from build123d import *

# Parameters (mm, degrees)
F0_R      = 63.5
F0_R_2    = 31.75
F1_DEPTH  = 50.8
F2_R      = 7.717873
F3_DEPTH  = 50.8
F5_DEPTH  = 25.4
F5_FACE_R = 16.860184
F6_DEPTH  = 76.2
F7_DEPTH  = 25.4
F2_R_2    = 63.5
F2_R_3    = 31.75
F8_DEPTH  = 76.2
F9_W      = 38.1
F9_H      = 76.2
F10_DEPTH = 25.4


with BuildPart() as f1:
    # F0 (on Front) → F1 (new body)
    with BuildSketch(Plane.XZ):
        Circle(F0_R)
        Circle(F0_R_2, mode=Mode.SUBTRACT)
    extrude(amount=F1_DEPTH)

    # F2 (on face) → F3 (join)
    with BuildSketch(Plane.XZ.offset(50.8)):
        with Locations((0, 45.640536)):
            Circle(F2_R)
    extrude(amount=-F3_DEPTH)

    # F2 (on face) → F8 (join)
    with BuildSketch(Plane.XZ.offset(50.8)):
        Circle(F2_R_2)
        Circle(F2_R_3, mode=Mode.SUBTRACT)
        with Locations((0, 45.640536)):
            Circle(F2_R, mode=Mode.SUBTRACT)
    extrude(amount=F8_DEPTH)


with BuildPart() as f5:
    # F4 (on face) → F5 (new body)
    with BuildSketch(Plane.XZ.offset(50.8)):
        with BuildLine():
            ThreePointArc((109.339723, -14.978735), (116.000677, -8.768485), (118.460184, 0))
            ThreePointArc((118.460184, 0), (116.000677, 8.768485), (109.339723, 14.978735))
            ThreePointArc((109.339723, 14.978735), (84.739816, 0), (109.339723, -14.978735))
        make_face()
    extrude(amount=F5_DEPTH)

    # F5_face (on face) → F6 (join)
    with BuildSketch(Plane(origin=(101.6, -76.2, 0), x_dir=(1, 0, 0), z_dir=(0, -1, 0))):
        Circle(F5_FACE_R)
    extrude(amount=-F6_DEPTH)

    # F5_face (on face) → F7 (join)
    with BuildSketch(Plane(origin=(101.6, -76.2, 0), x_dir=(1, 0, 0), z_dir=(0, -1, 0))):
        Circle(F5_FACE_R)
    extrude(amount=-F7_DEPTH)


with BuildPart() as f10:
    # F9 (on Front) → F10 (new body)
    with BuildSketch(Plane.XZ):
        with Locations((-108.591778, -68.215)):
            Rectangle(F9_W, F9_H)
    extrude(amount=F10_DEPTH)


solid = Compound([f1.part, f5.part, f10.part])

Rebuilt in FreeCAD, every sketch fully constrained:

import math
import FreeCAD as App
import Part
import Sketcher
Q = App.Units.Quantity

doc = App.newDocument("Part")
body = doc.addObject("PartDesign::Body", "Body")

sketch1 = body.newObject("Sketcher::SketchObject", "Sketch")
sketch1.AttachmentSupport = (doc.getObject("XZ_Plane"), [""])
sketch1.MapMode = "FlatFace"
sketch1.addGeometry(Part.Circle(App.Vector(0, 0, 0), App.Vector(0, 0, 1), 64), False)
sketch1.addGeometry(Part.Circle(App.Vector(0, 0, 0), App.Vector(0, 0, 1), 32), False)
sketch1.addConstraint(Sketcher.Constraint("Coincident", 0, 3, -1, 1))
sketch1.addConstraint(Sketcher.Constraint("Coincident", 1, 3, -1, 1))
sketch1.addConstraint(Sketcher.Constraint("Diameter", 0, Q("5 in")))
sketch1.addConstraint(Sketcher.Constraint("Diameter", 1, Q("2.5 in")))
pad1 = body.newObject("PartDesign::Pad", "Pad")
pad1.Profile = sketch1
pad1.Length = Q("2 in")

sketch2 = body.newObject("Sketcher::SketchObject", "Sketch001")
sketch2.AttachmentSupport = (doc.getObject("XZ_Plane"), [""])
sketch2.MapMode = "FlatFace"
sketch2.AttachmentOffset = App.Placement(App.Vector(0, 0, 2 * 25.4), App.Rotation())
sketch2.addGeometry(Part.Circle(App.Vector(0, 46, 0), App.Vector(0, 0, 1), 8), False)
sketch2.addConstraint(Sketcher.Constraint("PointOnObject", 0, 3, -2))
sketch2.addConstraint(Sketcher.Constraint("Diameter", 0, Q("15.435746 mm")))
sketch2.addConstraint(Sketcher.Constraint("DistanceY", -1, 1, 0, 3, Q("45.640536 mm")))
pad2 = body.newObject("PartDesign::Pad", "Pad001")
pad2.Profile = sketch2
pad2.Length = Q("2 in")
pad2.Reversed = True

sketch3 = body.newObject("Sketcher::SketchObject", "Sketch002")
sketch3.AttachmentSupport = (doc.getObject("XZ_Plane"), [""])
sketch3.MapMode = "FlatFace"
sketch3.AttachmentOffset = App.Placement(App.Vector(0, 0, 2 * 25.4), App.Rotation())
sketch3.addGeometry(Part.Circle(App.Vector(0, 0, 0), App.Vector(0, 0, 1), 64), False)
sketch3.addGeometry(Part.Circle(App.Vector(0, 0, 0), App.Vector(0, 0, 1), 32), False)
sketch3.addGeometry(Part.Circle(App.Vector(0, 46, 0), App.Vector(0, 0, 1), 8), False)
sketch3.addConstraint(Sketcher.Constraint("Coincident", 0, 3, -1, 1))
sketch3.addConstraint(Sketcher.Constraint("Coincident", 1, 3, -1, 1))
sketch3.addConstraint(Sketcher.Constraint("PointOnObject", 2, 3, -2))
sketch3.addConstraint(Sketcher.Constraint("Diameter", 0, Q("5 in")))
sketch3.addConstraint(Sketcher.Constraint("Diameter", 1, Q("2.5 in")))
sketch3.addConstraint(Sketcher.Constraint("Diameter", 2, Q("15.435746 mm")))
sketch3.addConstraint(Sketcher.Constraint("DistanceY", -1, 1, 2, 3, Q("45.640536 mm")))
pad3 = body.newObject("PartDesign::Pad", "Pad002")
pad3.Profile = sketch3
pad3.Length = Q("3 in")
body2 = doc.addObject("PartDesign::Body", "Body001")

sketch4 = body2.newObject("Sketcher::SketchObject", "Sketch003")
sketch4.AttachmentSupport = (doc.getObject("XZ_Plane001"), [""])
sketch4.MapMode = "FlatFace"
sketch4.AttachmentOffset = App.Placement(App.Vector(0, 0, 2 * 25.4), App.Rotation())
sketch4.addGeometry(Part.ArcOfCircle(Part.Circle(App.Vector(102, 0, 0), App.Vector(0, 0, 1), 17), math.radians(-63), math.radians(0)), False)
sketch4.addGeometry(Part.ArcOfCircle(Part.Circle(App.Vector(102, 0, 0), App.Vector(0, 0, 1), 17), math.radians(0), math.radians(63)), False)
sketch4.addGeometry(Part.ArcOfCircle(Part.Circle(App.Vector(102, 0, 0), App.Vector(0, 0, 1), 17), math.radians(63), math.radians(297)), False)
sketch4.addConstraint(Sketcher.Constraint("Tangent", 0, 2, 1, 1))
sketch4.addConstraint(Sketcher.Constraint("Tangent", 1, 2, 2, 1))
sketch4.addConstraint(Sketcher.Constraint("Tangent", 2, 2, 0, 1))
sketch4.addConstraint(Sketcher.Constraint("Symmetric", 1, 2, 2, 2, -1))
sketch4.addConstraint(Sketcher.Constraint("PointOnObject", 0, 2, -1))
sketch4.addConstraint(Sketcher.Constraint("DistanceX", -1, 1, 0, 3, Q("4.0000001 in")))
sketch4.addConstraint(Sketcher.Constraint("Radius", 0, Q("16.860181 mm")))
sketch4.addConstraint(Sketcher.Constraint("DistanceX", 1, 3, 1, 2, Q("7.73972 mm")))
pad4 = body2.newObject("PartDesign::Pad", "Pad003")
pad4.Profile = sketch4
pad4.Length = Q("1 in")

sketch5 = body2.newObject("Sketcher::SketchObject", "Sketch004")
sketch5.AttachmentSupport = (doc.getObject("XZ_Plane001"), [""])
sketch5.MapMode = "FlatFace"
sketch5.AttachmentOffset = App.Placement(App.Vector(0, 0, 3 * 25.4), App.Rotation())
sketch5.addGeometry(Part.Circle(App.Vector(102, 0, 0), App.Vector(0, 0, 1), 17), False)
sketch5.addConstraint(Sketcher.Constraint("PointOnObject", 0, 3, -1))
sketch5.addConstraint(Sketcher.Constraint("DistanceX", -1, 1, 0, 3, Q("4 in")))
sketch5.addConstraint(Sketcher.Constraint("Diameter", 0, Q("33.720368 mm")))
pad5 = body2.newObject("PartDesign::Pad", "Pad004")
pad5.Profile = sketch5
pad5.Length = Q("3 in")
pad5.Reversed = True

sketch6 = body2.newObject("Sketcher::SketchObject", "Sketch005")
sketch6.AttachmentSupport = (doc.getObject("XZ_Plane001"), [""])
sketch6.MapMode = "FlatFace"
sketch6.AttachmentOffset = App.Placement(App.Vector(0, 0, 3 * 25.4), App.Rotation())
sketch6.addGeometry(Part.Circle(App.Vector(102, 0, 0), App.Vector(0, 0, 1), 17), False)
sketch6.addConstraint(Sketcher.Constraint("PointOnObject", 0, 3, -1))
sketch6.addConstraint(Sketcher.Constraint("DistanceX", -1, 1, 0, 3, Q("4 in")))
sketch6.addConstraint(Sketcher.Constraint("Diameter", 0, Q("33.720368 mm")))
pad6 = body2.newObject("PartDesign::Pad", "Pad005")
pad6.Profile = sketch6
pad6.Length = Q("1 in")
pad6.Reversed = True
body3 = doc.addObject("PartDesign::Body", "Body002")

sketch7 = body3.newObject("Sketcher::SketchObject", "Sketch006")
sketch7.AttachmentSupport = (doc.getObject("XZ_Plane002"), [""])
sketch7.MapMode = "FlatFace"
sketch7.addGeometry(Part.LineSegment(App.Vector(-128, -30, 0), App.Vector(-128, -106, 0)), False)
sketch7.addGeometry(Part.LineSegment(App.Vector(-128, -106, 0), App.Vector(-90, -106, 0)), False)
sketch7.addGeometry(Part.LineSegment(App.Vector(-90, -106, 0), App.Vector(-90, -30, 0)), False)
sketch7.addGeometry(Part.LineSegment(App.Vector(-90, -30, 0), App.Vector(-128, -30, 0)), False)
sketch7.addConstraint(Sketcher.Constraint("Coincident", 0, 2, 1, 1))
sketch7.addConstraint(Sketcher.Constraint("Coincident", 1, 2, 2, 1))
sketch7.addConstraint(Sketcher.Constraint("Coincident", 2, 2, 3, 1))
sketch7.addConstraint(Sketcher.Constraint("Coincident", 3, 2, 0, 1))
sketch7.addConstraint(Sketcher.Constraint("Vertical", 0))
sketch7.addConstraint(Sketcher.Constraint("Horizontal", 1))
sketch7.addConstraint(Sketcher.Constraint("Vertical", 2))
sketch7.addConstraint(Sketcher.Constraint("Horizontal", 3))
sketch7.addConstraint(Sketcher.Constraint("DistanceY", 0, 2, 0, 1, Q("3 in")))
sketch7.addConstraint(Sketcher.Constraint("DistanceX", 1, 1, 1, 2, Q("1.5 in")))
sketch7.addConstraint(Sketcher.Constraint("DistanceY", 0, 2, -1, 1, Q("106.315 mm")))
sketch7.addConstraint(Sketcher.Constraint("DistanceX", 0, 2, -1, 1, Q("127.641778 mm")))
pad7 = body3.newObject("PartDesign::Pad", "Pad006")
pad7.Profile = sketch7
pad7.Length = Q("1 in")

doc.recompute()
